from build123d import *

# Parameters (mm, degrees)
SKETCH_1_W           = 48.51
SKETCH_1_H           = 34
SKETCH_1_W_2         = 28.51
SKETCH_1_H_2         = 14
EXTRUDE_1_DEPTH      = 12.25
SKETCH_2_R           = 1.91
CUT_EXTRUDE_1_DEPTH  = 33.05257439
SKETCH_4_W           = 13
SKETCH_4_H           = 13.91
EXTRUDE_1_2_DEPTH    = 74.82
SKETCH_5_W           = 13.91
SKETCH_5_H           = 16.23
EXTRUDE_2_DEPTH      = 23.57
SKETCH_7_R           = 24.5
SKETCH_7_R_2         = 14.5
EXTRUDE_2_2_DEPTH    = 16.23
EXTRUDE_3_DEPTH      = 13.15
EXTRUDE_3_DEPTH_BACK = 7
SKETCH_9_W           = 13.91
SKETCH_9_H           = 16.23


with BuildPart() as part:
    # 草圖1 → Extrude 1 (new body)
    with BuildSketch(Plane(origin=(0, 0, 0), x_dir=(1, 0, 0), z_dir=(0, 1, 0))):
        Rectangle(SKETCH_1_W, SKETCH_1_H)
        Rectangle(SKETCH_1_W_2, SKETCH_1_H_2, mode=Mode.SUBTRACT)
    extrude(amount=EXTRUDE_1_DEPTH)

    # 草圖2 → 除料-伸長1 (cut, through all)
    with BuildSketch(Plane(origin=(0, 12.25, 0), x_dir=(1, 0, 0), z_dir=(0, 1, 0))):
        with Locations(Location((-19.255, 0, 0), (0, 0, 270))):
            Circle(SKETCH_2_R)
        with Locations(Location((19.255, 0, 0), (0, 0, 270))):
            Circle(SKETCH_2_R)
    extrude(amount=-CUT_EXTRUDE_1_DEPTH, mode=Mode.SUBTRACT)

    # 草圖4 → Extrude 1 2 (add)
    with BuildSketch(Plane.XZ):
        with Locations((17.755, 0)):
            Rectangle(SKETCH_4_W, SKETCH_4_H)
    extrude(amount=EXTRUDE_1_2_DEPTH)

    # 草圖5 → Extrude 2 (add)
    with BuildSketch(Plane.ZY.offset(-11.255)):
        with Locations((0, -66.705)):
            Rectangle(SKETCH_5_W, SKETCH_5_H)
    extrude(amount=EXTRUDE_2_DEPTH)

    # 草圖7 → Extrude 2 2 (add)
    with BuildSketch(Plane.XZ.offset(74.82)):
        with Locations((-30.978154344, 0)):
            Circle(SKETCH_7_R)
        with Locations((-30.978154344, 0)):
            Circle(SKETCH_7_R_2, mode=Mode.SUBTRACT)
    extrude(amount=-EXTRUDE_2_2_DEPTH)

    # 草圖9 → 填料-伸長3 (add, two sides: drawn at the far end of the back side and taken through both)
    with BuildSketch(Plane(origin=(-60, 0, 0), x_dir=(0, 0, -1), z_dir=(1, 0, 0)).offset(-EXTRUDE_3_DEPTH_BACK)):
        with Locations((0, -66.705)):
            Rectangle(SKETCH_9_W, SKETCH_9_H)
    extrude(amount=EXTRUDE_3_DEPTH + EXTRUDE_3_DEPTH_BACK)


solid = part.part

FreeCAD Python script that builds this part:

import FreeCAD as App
import Part
import Sketcher
Q = App.Units.Quantity

doc = App.newDocument("Part")
params = doc.addObject("Spreadsheet::Sheet", "Params")
for row, (alias, value) in enumerate([
    ("sketch1_height", "34 mm"),
    ("sketch1_height2", "14 mm"),
    ("sketch1_width", "48.51 mm"),
    ("pad1_length", "12.25 mm"),
    ("sketch2_diameter", "3.82 mm"),
    ("sketch3_width", "13 mm"),
    ("sketch3_height", "13.91 mm"),
    ("pad2_length", "74.82 mm"),
    ("sketch4_width", "16.23 mm"),
    ("sketch4_height", "13.91 mm"),
    ("pad3_length", "23.57 mm"),
    ("sketch5_diameter", "49 mm"),
    ("sketch5_diameter2", "29 mm"),
    ("pad4_length", "16.23 mm"),
    ("sketch6_width", "16.23 mm"),
    ("sketch6_height", "13.91 mm"),
    ("pad5_length", "13.15 mm"),
    ("pad5_length2", "7 mm"),
], start=1):
    params.set(f"A{row}", alias)
    params.set(f"B{row}", "=" + value)
    params.setAlias(f"B{row}", alias)

body = doc.addObject("PartDesign::Body", "Body")

sketch1 = body.newObject("Sketcher::SketchObject", "Sketch")
sketch1.AttachmentSupport = (doc.getObject("XZ_Plane"), [""])
sketch1.MapMode = "FlatFace"
sketch1.addGeometry([
    Part.LineSegment(App.Vector(-24, -17, 0), App.Vector(-24, 17, 0)),
    Part.LineSegment(App.Vector(-24, 17, 0), App.Vector(24, 17, 0)),
    Part.LineSegment(App.Vector(24, 17, 0), App.Vector(24, -17, 0)),
    Part.LineSegment(App.Vector(24, -17, 0), App.Vector(-24, -17, 0)),
    Part.LineSegment(App.Vector(14, 7, 0), App.Vector(-14, 7, 0)),
    Part.LineSegment(App.Vector(-14, 7, 0), App.Vector(-14, -7, 0)),
    Part.LineSegment(App.Vector(-14, -7, 0), App.Vector(14, -7, 0)),
    Part.LineSegment(App.Vector(14, -7, 0), App.Vector(14, 7, 0)),
], False)
sketch1.addConstraint([
    Sketcher.Constraint("Coincident", 0, 2, 1, 1),
    Sketcher.Constraint("Coincident", 1, 2, 2, 1),
    Sketcher.Constraint("Coincident", 2, 2, 3, 1),
    Sketcher.Constraint("Coincident", 3, 2, 0, 1),
    Sketcher.Constraint("Coincident", 4, 2, 5, 1),
    Sketcher.Constraint("Coincident", 5, 2, 6, 1),
    Sketcher.Constraint("Coincident", 6, 2, 7, 1),
    Sketcher.Constraint("Coincident", 7, 2, 4, 1),
    Sketcher.Constraint("Vertical", 0),
    Sketcher.Constraint("Horizontal", 1),
    Sketcher.Constraint("Vertical", 2),
    Sketcher.Constraint("Horizontal", 3),
    Sketcher.Constraint("Horizontal", 4),
    Sketcher.Constraint("Vertical", 5),
    Sketcher.Constraint("Horizontal", 6),
    Sketcher.Constraint("Vertical", 7),
    Sketcher.Constraint("Symmetric", 0, 2, 2, 2, -1, 1),
    Sketcher.Constraint("Symmetric", 4, 2, 6, 2, -1, 1),
    Sketcher.Constraint("DistanceY", 0, 1, 0, 2, Q("34 mm")),
    Sketcher.Constraint("DistanceY", 5, 2, 5, 1, Q("14 mm")),
    Sketcher.Constraint("DistanceX", 0, 2, 4, 2, Q("10 mm")),
    Sketcher.Constraint("DistanceX", 1, 1, 1, 2, Q("48.51 mm")),
])
sketch1.setExpression("Constraints[18]", "Params.sketch1_height")
sketch1.setExpression("Constraints[19]", "Params.sketch1_height2")
sketch1.setExpression("Constraints[21]", "Params.sketch1_width")
pad1 = body.newObject("PartDesign::Pad", "Pad")
pad1.Profile = sketch1
pad1.setExpression("Length", "Params.pad1_length")
pad1.Reversed = True

sketch2 = body.newObject("Sketcher::SketchObject", "Sketch001")
sketch2.AttachmentSupport = (doc.getObject("XZ_Plane"), [""])
sketch2.MapMode = "FlatFace"
sketch2.AttachmentOffset = App.Placement(App.Vector(0, 0, -12.25), App.Rotation())
sketch2.addGeometry([
    Part.Circle(App.Vector(-19.3, 0, 0), App.Vector(0, 0, 1), 1.9),
    Part.Circle(App.Vector(19.3, 0, 0), App.Vector(0, 0, 1), 1.9),
], False)
sketch2.addConstraint([
    Sketcher.Constraint("Equal", 0, 1),
    Sketcher.Constraint("Symmetric", 0, 3, 1, 3, -1, 1),
    Sketcher.Constraint("PointOnObject", 0, 3, -1),
    Sketcher.Constraint("Diameter", 0, Q("3.82 mm")),
    Sketcher.Constraint("DistanceX", 0, 3, 1, 3, Q("38.51 mm")),
])
sketch2.setExpression("Constraints[3]", "Params.sketch2_diameter")
pocket1 = body.newObject("PartDesign::Pocket", "Pocket")
pocket1.Profile = sketch2
pocket1.Type = "ThroughAll"
pocket1.Reversed = True

sketch3 = body.newObject("Sketcher::SketchObject", "Sketch002")
sketch3.AttachmentSupport = (doc.getObject("XZ_Plane"), [""])
sketch3.MapMode = "FlatFace"
sketch3.addGeometry([
    Part.LineSegment(App.Vector(11, 7, 0), App.Vector(11, -7, 0)),
    Part.LineSegment(App.Vector(11, -7, 0), App.Vector(24, -7, 0)),
    Part.LineSegment(App.Vector(24, -7, 0), App.Vector(24, 7, 0)),
    Part.LineSegment(App.Vector(24, 7, 0), App.Vector(11, 7, 0)),
], False)
sketch3.addConstraint([
    Sketcher.Constraint("Coincident", 0, 2, 1, 1),
    Sketcher.Constraint("Coincident", 1, 2, 2, 1),
    Sketcher.Constraint("Coincident", 2, 2, 3, 1),
    Sketcher.Constraint("Coincident", 3, 2, 0, 1),
    Sketcher.Constraint("Vertical", 0),
    Sketcher.Constraint("Horizontal", 1),
    Sketcher.Constraint("Vertical", 2),
    Sketcher.Constraint("Horizontal", 3),
    Sketcher.Constraint("DistanceX", 1, 1, 1, 2, Q("13 mm")),
    Sketcher.Constraint("DistanceY", 0, 2, 0, 1, Q("13.91 mm")),
    Sketcher.Constraint("DistanceX", -1, 1, 0, 2, Q("11.255 mm")),
    Sketcher.Constraint("DistanceY", 0, 2, -1, 1, Q("6.955 mm")),
])
sketch3.setExpression("Constraints[8]", "Params.sketch3_width")
sketch3.setExpression("Constraints[9]", "Params.sketch3_height")
pad2 = body.newObject("PartDesign::Pad", "Pad001")
pad2.Profile = sketch3
pad2.setExpression("Length", "Params.pad2_length")

sketch4 = body.newObject("Sketcher::SketchObject", "Sketch003")
sketch4.AttachmentSupport = (doc.getObject("YZ_Plane"), [""])
sketch4.MapMode = "FlatFace"
sketch4.AttachmentOffset = App.Placement(App.Vector(0, 0, 11.255), App.Rotation())
sketch4.addGeometry([
    Part.LineSegment(App.Vector(-59, -7, 0), App.Vector(-75, -7, 0)),
    Part.LineSegment(App.Vector(-75, -7, 0), App.Vector(-75, 7, 0)),
    Part.LineSegment(App.Vector(-75, 7, 0), App.Vector(-59, 7, 0)),
    Part.LineSegment(App.Vector(-59, 7, 0), App.Vector(-59, -7, 0)),
], False)
sketch4.addConstraint([
    Sketcher.Constraint("Coincident", 0, 2, 1, 1),
    Sketcher.Constraint("Coincident", 1, 2, 2, 1),
    Sketcher.Constraint("Coincident", 2, 2, 3, 1),
    Sketcher.Constraint("Coincident", 3, 2, 0, 1),
    Sketcher.Constraint("Horizontal", 0),
    Sketcher.Constraint("Vertical", 1),
    Sketcher.Constraint("Horizontal", 2),
    Sketcher.Constraint("Vertical", 3),
    Sketcher.Constraint("DistanceX", 0, 2, 0, 1, Q("16.23 mm")),
    Sketcher.Constraint("DistanceY", 1, 1, 1, 2, Q("13.91 mm")),
    Sketcher.Constraint("DistanceX", 0, 2, -1, 1, Q("74.82 mm")),
    Sketcher.Constraint("DistanceY", 0, 2, -1, 1, Q("6.955 mm")),
])
sketch4.setExpression("Constraints[8]", "Params.sketch4_width")
sketch4.setExpression("Constraints[9]", "Params.sketch4_height")
pad3 = body.newObject("PartDesign::Pad", "Pad002")
pad3.Profile = sketch4
pad3.setExpression("Length", "Params.pad3_length")
pad3.Reversed = True

sketch5 = body.newObject("Sketcher::SketchObject", "Sketch004")
sketch5.AttachmentSupport = (doc.getObject("XZ_Plane"), [""])
sketch5.MapMode = "FlatFace"
sketch5.AttachmentOffset = App.Placement(App.Vector(0, 0, 74.82), App.Rotation())
sketch5.addGeometry([
    Part.Circle(App.Vector(-31, 0, 0), App.Vector(0, 0, 1), 24),
    Part.Circle(App.Vector(-31, 0, 0), App.Vector(0, 0, 1), 14),
], False)
sketch5.addConstraint([
    Sketcher.Constraint("Coincident", 1, 3, 0, 3),
    Sketcher.Constraint("PointOnObject", 0, 3, -1),
    Sketcher.Constraint("Diameter", 0, Q("49 mm")),
    Sketcher.Constraint("Diameter", 1, Q("29 mm")),
    Sketcher.Constraint("DistanceX", 0, 3, -1, 1, Q("30.978154 mm")),
])
sketch5.setExpression("Constraints[2]", "Params.sketch5_diameter")
sketch5.setExpression("Constraints[3]", "Params.sketch5_diameter2")
pad4 = body.newObject("PartDesign::Pad", "Pad003")
pad4.Profile = sketch5
pad4.setExpression("Length", "Params.pad4_length")
pad4.Reversed = True

sketch6 = body.newObject("Sketcher::SketchObject", "Sketch005")
sketch6.AttachmentSupport = (doc.getObject("YZ_Plane"), [""])
sketch6.MapMode = "FlatFace"
sketch6.AttachmentOffset = App.Placement(App.Vector(0, 0, -60), App.Rotation())
sketch6.addGeometry([
    Part.LineSegment(App.Vector(-59, 7, 0), App.Vector(-75, 7, 0)),
    Part.LineSegment(App.Vector(-75, 7, 0), App.Vector(-75, -7, 0)),
    Part.LineSegment(App.Vector(-75, -7, 0), App.Vector(-59, -7, 0)),
    Part.LineSegment(App.Vector(-59, -7, 0), App.Vector(-59, 7, 0)),
], False)
sketch6.addConstraint([
    Sketcher.Constraint("Coincident", 0, 2, 1, 1),
    Sketcher.Constraint("Coincident", 1, 2, 2, 1),
    Sketcher.Constraint("Coincident", 2, 2, 3, 1),
    Sketcher.Constraint("Coincident", 3, 2, 0, 1),
    Sketcher.Constraint("Horizontal", 0),
    Sketcher.Constraint("Vertical", 1),
    Sketcher.Constraint("Horizontal", 2),
    Sketcher.Constraint("Vertical", 3),
    Sketcher.Constraint("DistanceX", 0, 2, 0, 1, Q("16.23 mm")),
    Sketcher.Constraint("DistanceY", 1, 2, 1, 1, Q("13.91 mm")),
    Sketcher.Constraint("DistanceX", 0, 2, -1, 1, Q("74.82 mm")),
    Sketcher.Constraint("DistanceY", -1, 1, 0, 2, Q("6.955 mm")),
])
sketch6.setExpression("Constraints[8]", "Params.sketch6_width")
sketch6.setExpression("Constraints[9]", "Params.sketch6_height")
pad5 = body.newObject("PartDesign::Pad", "Pad004")
pad5.Profile = sketch6
pad5.Type = "TwoLengths"
pad5.setExpression("Length", "Params.pad5_length")
pad5.setExpression("Length2", "Params.pad5_length2")

doc.recompute()
